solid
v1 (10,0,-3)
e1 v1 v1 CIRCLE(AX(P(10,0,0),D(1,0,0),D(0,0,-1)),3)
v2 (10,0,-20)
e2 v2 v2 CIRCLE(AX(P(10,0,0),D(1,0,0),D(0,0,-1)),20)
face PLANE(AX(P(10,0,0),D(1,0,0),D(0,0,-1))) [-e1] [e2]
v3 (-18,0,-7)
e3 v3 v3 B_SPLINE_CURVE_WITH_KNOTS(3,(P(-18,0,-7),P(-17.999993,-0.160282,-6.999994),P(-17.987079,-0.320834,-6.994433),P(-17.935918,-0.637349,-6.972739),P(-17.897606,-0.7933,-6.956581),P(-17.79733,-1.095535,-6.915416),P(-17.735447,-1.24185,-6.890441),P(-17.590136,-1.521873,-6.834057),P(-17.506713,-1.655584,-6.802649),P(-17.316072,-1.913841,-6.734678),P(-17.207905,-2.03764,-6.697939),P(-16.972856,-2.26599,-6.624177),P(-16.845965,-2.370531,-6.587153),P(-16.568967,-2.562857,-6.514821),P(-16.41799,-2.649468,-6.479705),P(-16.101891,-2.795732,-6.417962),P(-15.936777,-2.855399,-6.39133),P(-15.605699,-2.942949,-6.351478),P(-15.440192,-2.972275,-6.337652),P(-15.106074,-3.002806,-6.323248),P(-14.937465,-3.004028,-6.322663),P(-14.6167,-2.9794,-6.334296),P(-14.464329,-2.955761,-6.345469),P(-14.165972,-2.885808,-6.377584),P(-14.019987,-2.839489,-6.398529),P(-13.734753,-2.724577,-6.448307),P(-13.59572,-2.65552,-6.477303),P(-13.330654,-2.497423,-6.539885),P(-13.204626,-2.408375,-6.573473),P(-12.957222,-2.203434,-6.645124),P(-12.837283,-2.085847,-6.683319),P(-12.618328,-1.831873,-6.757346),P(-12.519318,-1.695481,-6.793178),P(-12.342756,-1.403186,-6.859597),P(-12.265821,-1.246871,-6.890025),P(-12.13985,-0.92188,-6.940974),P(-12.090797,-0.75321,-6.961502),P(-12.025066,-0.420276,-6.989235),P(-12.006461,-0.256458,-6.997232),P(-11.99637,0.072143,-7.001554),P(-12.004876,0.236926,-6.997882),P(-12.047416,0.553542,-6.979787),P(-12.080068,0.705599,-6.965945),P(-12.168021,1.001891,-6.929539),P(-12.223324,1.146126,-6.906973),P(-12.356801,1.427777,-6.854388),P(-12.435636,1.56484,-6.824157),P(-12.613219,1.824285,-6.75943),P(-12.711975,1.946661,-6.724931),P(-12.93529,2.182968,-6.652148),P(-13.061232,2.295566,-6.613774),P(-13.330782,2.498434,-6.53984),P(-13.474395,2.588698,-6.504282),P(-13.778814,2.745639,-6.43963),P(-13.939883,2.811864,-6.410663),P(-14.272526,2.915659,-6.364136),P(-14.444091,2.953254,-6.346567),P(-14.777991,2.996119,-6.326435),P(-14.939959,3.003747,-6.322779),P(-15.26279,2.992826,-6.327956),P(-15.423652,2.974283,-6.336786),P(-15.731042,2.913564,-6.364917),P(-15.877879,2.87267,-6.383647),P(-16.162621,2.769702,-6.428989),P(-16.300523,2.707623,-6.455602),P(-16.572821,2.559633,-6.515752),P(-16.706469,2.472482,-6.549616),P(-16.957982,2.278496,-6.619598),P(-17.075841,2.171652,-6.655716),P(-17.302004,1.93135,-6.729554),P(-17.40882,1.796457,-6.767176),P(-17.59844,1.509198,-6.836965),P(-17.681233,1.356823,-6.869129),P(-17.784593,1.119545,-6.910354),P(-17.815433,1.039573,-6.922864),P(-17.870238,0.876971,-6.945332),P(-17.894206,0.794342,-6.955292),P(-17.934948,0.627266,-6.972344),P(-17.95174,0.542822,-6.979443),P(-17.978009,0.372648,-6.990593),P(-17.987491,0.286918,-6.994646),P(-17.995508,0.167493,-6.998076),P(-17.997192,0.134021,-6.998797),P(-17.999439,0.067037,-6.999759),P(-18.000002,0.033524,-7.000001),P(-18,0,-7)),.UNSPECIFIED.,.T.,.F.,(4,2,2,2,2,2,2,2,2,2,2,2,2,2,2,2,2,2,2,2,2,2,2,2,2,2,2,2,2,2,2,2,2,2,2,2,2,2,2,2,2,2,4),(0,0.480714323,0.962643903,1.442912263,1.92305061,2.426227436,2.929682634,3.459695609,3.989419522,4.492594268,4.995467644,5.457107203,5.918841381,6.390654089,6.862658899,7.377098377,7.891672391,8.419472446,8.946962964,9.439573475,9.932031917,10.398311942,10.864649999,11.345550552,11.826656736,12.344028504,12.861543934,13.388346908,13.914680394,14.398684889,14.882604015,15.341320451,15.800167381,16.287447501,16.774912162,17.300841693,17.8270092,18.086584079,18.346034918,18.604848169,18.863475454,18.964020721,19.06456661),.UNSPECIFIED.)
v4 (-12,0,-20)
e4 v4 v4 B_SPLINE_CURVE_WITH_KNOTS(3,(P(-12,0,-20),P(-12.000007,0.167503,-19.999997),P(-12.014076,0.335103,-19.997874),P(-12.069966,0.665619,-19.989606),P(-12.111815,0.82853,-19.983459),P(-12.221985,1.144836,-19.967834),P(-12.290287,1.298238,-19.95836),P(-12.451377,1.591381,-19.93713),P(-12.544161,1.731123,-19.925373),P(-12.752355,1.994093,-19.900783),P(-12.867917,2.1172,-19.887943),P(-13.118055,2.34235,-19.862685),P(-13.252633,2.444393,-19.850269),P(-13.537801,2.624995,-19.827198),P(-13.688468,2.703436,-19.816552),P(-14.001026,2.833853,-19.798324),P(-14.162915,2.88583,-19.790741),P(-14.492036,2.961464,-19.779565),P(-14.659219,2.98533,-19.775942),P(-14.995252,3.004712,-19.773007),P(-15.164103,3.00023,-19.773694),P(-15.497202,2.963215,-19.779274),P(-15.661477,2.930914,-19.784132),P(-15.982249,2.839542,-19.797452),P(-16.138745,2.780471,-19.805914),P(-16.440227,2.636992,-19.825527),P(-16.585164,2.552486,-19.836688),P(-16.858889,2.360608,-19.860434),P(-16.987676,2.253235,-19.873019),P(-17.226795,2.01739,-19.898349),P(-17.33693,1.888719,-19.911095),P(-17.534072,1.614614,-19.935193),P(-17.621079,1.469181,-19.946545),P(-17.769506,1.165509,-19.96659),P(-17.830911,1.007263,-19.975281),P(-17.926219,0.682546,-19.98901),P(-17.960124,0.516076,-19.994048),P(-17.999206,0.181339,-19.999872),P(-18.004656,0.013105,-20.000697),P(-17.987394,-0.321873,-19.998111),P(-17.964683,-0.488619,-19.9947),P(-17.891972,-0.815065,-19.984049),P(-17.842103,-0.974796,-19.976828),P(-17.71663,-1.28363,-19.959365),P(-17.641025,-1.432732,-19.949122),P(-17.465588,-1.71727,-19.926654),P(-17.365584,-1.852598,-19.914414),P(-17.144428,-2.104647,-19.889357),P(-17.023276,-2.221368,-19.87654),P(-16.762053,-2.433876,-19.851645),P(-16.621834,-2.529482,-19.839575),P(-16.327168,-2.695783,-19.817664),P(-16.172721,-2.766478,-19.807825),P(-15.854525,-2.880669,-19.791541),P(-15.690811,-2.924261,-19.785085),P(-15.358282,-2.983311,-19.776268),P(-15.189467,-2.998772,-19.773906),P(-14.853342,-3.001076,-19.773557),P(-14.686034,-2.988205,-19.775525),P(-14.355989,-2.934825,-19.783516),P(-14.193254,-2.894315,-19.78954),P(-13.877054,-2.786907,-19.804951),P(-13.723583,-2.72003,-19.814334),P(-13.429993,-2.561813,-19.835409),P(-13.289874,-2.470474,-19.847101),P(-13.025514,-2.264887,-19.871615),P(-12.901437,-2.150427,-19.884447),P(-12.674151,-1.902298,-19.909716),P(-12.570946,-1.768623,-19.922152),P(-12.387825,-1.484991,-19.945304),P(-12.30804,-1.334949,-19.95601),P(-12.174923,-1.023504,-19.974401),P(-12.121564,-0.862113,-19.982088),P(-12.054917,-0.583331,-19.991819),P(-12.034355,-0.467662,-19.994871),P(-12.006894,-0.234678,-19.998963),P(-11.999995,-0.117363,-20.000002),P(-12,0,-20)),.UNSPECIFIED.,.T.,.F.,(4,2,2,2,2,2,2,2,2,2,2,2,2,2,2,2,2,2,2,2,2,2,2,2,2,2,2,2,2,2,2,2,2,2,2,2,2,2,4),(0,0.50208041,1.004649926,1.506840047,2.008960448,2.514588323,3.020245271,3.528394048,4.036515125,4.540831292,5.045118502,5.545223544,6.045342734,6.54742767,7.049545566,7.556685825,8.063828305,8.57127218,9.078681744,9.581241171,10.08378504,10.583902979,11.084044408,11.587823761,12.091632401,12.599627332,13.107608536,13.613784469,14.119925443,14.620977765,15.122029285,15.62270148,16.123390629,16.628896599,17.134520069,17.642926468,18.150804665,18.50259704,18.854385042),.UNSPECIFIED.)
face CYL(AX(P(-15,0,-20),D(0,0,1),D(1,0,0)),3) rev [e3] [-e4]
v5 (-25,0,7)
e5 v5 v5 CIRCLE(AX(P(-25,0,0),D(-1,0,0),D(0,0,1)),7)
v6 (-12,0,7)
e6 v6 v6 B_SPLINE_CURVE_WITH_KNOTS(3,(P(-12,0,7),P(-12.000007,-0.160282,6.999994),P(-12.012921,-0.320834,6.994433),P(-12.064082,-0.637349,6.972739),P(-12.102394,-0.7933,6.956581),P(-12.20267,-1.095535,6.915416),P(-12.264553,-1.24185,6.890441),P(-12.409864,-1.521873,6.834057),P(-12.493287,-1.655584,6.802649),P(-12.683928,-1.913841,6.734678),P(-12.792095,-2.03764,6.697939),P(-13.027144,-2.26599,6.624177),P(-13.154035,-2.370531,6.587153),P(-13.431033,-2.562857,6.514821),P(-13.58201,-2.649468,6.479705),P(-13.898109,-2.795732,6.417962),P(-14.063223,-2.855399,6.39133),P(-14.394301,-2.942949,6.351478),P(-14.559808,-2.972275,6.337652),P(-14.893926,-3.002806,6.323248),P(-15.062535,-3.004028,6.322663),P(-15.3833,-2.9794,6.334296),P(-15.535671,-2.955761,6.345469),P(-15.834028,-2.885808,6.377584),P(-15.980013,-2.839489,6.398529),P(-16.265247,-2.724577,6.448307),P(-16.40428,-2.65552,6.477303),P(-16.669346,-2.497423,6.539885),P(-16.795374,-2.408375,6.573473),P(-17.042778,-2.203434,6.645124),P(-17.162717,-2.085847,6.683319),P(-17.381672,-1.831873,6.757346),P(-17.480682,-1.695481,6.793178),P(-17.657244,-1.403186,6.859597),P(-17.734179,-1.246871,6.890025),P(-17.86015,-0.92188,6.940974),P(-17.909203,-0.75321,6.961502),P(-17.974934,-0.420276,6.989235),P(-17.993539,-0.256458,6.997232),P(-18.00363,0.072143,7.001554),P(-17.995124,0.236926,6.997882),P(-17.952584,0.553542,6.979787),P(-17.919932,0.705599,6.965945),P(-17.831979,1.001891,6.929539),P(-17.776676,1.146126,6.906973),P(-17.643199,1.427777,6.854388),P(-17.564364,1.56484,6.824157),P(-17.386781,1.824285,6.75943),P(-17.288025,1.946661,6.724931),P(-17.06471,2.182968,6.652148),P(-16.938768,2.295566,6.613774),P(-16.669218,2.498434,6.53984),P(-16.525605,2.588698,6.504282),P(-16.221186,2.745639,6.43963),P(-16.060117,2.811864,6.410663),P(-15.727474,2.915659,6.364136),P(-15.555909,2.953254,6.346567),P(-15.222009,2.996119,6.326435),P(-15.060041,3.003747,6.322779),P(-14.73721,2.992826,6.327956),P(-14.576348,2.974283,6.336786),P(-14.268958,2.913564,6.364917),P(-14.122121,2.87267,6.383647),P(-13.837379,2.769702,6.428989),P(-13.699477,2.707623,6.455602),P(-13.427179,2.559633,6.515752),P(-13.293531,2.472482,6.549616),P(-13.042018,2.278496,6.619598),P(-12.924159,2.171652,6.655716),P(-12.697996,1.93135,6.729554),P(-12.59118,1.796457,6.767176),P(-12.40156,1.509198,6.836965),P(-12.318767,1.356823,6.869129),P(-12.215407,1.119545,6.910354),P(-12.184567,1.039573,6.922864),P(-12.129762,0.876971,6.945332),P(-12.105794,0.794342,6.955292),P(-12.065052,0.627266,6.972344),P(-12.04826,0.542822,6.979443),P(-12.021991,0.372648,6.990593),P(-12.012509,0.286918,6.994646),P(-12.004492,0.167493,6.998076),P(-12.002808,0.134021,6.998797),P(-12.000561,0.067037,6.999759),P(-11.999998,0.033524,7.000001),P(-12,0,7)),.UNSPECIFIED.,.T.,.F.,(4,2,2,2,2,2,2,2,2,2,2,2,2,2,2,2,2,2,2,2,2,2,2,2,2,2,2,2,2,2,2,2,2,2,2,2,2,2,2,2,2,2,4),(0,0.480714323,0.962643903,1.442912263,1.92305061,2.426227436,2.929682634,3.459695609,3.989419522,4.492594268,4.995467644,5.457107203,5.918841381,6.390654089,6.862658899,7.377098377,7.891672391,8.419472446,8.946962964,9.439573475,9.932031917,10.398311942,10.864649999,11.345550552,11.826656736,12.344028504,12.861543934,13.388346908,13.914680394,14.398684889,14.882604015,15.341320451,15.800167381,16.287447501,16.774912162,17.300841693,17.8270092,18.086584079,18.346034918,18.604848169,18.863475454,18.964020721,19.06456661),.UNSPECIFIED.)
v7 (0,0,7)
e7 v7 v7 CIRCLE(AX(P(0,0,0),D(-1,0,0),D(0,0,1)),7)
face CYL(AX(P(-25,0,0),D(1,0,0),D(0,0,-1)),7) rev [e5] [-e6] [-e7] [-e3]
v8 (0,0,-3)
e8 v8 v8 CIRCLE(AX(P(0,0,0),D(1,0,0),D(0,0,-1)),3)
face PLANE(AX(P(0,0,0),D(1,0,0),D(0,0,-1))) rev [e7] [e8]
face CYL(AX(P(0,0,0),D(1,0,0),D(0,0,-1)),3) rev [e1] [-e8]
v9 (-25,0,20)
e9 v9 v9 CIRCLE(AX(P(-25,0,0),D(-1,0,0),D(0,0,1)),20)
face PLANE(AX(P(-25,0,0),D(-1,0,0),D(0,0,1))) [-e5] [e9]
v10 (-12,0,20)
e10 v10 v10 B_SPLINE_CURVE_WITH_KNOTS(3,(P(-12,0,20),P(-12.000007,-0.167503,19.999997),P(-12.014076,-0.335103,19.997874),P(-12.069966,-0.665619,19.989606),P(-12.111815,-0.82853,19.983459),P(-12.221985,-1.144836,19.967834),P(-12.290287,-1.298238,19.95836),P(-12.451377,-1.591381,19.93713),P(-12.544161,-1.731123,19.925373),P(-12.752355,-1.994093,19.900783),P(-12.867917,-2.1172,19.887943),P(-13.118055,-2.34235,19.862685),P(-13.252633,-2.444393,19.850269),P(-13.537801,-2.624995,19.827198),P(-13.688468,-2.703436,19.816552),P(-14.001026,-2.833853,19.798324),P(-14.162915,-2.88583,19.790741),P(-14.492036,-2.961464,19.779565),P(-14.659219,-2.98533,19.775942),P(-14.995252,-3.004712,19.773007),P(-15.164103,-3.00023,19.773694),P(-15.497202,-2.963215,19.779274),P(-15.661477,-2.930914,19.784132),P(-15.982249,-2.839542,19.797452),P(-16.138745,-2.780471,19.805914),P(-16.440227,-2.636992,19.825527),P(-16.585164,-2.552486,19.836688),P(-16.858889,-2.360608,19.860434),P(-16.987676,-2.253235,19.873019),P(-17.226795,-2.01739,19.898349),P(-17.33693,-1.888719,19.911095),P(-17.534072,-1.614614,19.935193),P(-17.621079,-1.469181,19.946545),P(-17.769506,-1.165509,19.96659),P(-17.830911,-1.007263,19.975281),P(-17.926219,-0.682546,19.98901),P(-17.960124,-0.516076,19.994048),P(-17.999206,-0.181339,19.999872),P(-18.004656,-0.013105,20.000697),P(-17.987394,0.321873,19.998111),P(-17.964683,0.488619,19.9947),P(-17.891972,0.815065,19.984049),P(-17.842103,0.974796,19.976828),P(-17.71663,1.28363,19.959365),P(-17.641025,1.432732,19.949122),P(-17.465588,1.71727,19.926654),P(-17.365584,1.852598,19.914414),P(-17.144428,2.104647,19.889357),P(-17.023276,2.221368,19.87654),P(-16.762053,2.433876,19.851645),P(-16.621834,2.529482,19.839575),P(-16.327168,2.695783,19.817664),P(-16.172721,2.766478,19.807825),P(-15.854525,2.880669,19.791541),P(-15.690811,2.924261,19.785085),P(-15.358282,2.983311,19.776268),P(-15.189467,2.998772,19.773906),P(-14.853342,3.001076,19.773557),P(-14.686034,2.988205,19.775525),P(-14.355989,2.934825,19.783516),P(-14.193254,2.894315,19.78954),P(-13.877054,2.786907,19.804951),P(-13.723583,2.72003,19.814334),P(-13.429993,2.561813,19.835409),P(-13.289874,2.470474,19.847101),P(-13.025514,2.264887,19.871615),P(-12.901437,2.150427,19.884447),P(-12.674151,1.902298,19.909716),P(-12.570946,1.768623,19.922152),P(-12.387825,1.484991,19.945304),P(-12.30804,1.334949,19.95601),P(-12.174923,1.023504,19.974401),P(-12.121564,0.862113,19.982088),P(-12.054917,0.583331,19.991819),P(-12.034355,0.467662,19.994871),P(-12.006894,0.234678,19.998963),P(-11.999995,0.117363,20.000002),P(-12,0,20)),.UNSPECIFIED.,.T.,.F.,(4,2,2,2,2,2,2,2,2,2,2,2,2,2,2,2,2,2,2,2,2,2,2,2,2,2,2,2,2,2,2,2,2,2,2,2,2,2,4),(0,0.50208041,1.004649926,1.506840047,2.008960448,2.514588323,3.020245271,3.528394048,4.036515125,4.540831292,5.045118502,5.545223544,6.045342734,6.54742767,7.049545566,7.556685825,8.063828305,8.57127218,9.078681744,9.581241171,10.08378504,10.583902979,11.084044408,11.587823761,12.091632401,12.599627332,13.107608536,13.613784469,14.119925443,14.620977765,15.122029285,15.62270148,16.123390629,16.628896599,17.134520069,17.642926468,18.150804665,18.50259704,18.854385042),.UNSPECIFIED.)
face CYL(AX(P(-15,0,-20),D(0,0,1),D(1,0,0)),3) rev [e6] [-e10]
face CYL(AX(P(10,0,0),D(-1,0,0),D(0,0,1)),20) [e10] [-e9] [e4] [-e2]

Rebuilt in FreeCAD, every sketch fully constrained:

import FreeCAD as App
import Part
import Sketcher

V = App.Vector

doc = App.newDocument("Part")
body = doc.addObject("PartDesign::Body", "Body")

# Sketch on YZ plane
sketch1 = body.newObject("Sketcher::SketchObject", "Sketch")
sketch1.AttachmentSupport = (doc.getObject("YZ_Plane"), [""])
sketch1.MapMode = "FlatFace"
sketch1.addGeometry(Part.Circle(V(0, 0, 0), V(0, 0, 1), 20), False)
sketch1.addConstraint(Sketcher.Constraint("Coincident", 0, 3, -1, 1))
sketch1.addConstraint(Sketcher.Constraint("Diameter", 0, 40.0))
pad1 = body.newObject("PartDesign::Pad", "Pad")
pad1.Profile = sketch1
pad1.Length = 10

# Sketch on YZ plane
sketch2 = body.newObject("Sketcher::SketchObject", "Sketch001")
sketch2.AttachmentSupport = (doc.getObject("YZ_Plane"), [""])
sketch2.MapMode = "FlatFace"
sketch2.AttachmentOffset = App.Placement(V(0, 0, -25), App.Rotation())
sketch2.addGeometry(Part.Circle(V(0, 0, 0), V(0, 0, 1), 20), False)
sketch2.addGeometry(Part.Circle(V(0, 0, 0), V(0, 0, 1), 7), False)
sketch2.addConstraint(Sketcher.Constraint("Coincident", 0, 3, -1, 1))
sketch2.addConstraint(Sketcher.Constraint("Coincident", 1, 3, -1, 1))
sketch2.addConstraint(Sketcher.Constraint("Diameter", 0, 40.0))
sketch2.addConstraint(Sketcher.Constraint("Diameter", 1, 14.0))
pad2 = body.newObject("PartDesign::Pad", "Pad001")
pad2.Profile = sketch2
pad2.Length = 25

# Sketch on YZ plane
sketch3 = body.newObject("Sketcher::SketchObject", "Sketch002")
sketch3.AttachmentSupport = (doc.getObject("YZ_Plane"), [""])
sketch3.MapMode = "FlatFace"
sketch3.AttachmentOffset = App.Placement(V(0, 0, 10), App.Rotation())
sketch3.addGeometry(Part.Circle(V(0, 0, 0), V(0, 0, 1), 3), False)
sketch3.addConstraint(Sketcher.Constraint("Coincident", 0, 3, -1, 1))
sketch3.addConstraint(Sketcher.Constraint("Diameter", 0, 6.0))
pocket1 = body.newObject("PartDesign::Pocket", "Pocket")
pocket1.Profile = sketch3
pocket1.Length = 10

# Sketch on XY plane
sketch4 = body.newObject("Sketcher::SketchObject", "Sketch003")
sketch4.AttachmentSupport = (doc.getObject("XY_Plane"), [""])
sketch4.MapMode = "FlatFace"
sketch4.addGeometry(Part.Circle(V(-15, 0, 0), V(0, 0, 1), 3), False)
sketch4.addConstraint(Sketcher.Constraint("PointOnObject", 0, 3, -1))
sketch4.addConstraint(Sketcher.Constraint("Diameter", 0, 6.0))
sketch4.addConstraint(Sketcher.Constraint("DistanceX", 0, 3, -1, 1, 15.0))
pocket2 = body.newObject("PartDesign::Pocket", "Pocket001")
pocket2.Profile = sketch4
pocket2.Length = 40
pocket2.Midplane = True

doc.recompute()
